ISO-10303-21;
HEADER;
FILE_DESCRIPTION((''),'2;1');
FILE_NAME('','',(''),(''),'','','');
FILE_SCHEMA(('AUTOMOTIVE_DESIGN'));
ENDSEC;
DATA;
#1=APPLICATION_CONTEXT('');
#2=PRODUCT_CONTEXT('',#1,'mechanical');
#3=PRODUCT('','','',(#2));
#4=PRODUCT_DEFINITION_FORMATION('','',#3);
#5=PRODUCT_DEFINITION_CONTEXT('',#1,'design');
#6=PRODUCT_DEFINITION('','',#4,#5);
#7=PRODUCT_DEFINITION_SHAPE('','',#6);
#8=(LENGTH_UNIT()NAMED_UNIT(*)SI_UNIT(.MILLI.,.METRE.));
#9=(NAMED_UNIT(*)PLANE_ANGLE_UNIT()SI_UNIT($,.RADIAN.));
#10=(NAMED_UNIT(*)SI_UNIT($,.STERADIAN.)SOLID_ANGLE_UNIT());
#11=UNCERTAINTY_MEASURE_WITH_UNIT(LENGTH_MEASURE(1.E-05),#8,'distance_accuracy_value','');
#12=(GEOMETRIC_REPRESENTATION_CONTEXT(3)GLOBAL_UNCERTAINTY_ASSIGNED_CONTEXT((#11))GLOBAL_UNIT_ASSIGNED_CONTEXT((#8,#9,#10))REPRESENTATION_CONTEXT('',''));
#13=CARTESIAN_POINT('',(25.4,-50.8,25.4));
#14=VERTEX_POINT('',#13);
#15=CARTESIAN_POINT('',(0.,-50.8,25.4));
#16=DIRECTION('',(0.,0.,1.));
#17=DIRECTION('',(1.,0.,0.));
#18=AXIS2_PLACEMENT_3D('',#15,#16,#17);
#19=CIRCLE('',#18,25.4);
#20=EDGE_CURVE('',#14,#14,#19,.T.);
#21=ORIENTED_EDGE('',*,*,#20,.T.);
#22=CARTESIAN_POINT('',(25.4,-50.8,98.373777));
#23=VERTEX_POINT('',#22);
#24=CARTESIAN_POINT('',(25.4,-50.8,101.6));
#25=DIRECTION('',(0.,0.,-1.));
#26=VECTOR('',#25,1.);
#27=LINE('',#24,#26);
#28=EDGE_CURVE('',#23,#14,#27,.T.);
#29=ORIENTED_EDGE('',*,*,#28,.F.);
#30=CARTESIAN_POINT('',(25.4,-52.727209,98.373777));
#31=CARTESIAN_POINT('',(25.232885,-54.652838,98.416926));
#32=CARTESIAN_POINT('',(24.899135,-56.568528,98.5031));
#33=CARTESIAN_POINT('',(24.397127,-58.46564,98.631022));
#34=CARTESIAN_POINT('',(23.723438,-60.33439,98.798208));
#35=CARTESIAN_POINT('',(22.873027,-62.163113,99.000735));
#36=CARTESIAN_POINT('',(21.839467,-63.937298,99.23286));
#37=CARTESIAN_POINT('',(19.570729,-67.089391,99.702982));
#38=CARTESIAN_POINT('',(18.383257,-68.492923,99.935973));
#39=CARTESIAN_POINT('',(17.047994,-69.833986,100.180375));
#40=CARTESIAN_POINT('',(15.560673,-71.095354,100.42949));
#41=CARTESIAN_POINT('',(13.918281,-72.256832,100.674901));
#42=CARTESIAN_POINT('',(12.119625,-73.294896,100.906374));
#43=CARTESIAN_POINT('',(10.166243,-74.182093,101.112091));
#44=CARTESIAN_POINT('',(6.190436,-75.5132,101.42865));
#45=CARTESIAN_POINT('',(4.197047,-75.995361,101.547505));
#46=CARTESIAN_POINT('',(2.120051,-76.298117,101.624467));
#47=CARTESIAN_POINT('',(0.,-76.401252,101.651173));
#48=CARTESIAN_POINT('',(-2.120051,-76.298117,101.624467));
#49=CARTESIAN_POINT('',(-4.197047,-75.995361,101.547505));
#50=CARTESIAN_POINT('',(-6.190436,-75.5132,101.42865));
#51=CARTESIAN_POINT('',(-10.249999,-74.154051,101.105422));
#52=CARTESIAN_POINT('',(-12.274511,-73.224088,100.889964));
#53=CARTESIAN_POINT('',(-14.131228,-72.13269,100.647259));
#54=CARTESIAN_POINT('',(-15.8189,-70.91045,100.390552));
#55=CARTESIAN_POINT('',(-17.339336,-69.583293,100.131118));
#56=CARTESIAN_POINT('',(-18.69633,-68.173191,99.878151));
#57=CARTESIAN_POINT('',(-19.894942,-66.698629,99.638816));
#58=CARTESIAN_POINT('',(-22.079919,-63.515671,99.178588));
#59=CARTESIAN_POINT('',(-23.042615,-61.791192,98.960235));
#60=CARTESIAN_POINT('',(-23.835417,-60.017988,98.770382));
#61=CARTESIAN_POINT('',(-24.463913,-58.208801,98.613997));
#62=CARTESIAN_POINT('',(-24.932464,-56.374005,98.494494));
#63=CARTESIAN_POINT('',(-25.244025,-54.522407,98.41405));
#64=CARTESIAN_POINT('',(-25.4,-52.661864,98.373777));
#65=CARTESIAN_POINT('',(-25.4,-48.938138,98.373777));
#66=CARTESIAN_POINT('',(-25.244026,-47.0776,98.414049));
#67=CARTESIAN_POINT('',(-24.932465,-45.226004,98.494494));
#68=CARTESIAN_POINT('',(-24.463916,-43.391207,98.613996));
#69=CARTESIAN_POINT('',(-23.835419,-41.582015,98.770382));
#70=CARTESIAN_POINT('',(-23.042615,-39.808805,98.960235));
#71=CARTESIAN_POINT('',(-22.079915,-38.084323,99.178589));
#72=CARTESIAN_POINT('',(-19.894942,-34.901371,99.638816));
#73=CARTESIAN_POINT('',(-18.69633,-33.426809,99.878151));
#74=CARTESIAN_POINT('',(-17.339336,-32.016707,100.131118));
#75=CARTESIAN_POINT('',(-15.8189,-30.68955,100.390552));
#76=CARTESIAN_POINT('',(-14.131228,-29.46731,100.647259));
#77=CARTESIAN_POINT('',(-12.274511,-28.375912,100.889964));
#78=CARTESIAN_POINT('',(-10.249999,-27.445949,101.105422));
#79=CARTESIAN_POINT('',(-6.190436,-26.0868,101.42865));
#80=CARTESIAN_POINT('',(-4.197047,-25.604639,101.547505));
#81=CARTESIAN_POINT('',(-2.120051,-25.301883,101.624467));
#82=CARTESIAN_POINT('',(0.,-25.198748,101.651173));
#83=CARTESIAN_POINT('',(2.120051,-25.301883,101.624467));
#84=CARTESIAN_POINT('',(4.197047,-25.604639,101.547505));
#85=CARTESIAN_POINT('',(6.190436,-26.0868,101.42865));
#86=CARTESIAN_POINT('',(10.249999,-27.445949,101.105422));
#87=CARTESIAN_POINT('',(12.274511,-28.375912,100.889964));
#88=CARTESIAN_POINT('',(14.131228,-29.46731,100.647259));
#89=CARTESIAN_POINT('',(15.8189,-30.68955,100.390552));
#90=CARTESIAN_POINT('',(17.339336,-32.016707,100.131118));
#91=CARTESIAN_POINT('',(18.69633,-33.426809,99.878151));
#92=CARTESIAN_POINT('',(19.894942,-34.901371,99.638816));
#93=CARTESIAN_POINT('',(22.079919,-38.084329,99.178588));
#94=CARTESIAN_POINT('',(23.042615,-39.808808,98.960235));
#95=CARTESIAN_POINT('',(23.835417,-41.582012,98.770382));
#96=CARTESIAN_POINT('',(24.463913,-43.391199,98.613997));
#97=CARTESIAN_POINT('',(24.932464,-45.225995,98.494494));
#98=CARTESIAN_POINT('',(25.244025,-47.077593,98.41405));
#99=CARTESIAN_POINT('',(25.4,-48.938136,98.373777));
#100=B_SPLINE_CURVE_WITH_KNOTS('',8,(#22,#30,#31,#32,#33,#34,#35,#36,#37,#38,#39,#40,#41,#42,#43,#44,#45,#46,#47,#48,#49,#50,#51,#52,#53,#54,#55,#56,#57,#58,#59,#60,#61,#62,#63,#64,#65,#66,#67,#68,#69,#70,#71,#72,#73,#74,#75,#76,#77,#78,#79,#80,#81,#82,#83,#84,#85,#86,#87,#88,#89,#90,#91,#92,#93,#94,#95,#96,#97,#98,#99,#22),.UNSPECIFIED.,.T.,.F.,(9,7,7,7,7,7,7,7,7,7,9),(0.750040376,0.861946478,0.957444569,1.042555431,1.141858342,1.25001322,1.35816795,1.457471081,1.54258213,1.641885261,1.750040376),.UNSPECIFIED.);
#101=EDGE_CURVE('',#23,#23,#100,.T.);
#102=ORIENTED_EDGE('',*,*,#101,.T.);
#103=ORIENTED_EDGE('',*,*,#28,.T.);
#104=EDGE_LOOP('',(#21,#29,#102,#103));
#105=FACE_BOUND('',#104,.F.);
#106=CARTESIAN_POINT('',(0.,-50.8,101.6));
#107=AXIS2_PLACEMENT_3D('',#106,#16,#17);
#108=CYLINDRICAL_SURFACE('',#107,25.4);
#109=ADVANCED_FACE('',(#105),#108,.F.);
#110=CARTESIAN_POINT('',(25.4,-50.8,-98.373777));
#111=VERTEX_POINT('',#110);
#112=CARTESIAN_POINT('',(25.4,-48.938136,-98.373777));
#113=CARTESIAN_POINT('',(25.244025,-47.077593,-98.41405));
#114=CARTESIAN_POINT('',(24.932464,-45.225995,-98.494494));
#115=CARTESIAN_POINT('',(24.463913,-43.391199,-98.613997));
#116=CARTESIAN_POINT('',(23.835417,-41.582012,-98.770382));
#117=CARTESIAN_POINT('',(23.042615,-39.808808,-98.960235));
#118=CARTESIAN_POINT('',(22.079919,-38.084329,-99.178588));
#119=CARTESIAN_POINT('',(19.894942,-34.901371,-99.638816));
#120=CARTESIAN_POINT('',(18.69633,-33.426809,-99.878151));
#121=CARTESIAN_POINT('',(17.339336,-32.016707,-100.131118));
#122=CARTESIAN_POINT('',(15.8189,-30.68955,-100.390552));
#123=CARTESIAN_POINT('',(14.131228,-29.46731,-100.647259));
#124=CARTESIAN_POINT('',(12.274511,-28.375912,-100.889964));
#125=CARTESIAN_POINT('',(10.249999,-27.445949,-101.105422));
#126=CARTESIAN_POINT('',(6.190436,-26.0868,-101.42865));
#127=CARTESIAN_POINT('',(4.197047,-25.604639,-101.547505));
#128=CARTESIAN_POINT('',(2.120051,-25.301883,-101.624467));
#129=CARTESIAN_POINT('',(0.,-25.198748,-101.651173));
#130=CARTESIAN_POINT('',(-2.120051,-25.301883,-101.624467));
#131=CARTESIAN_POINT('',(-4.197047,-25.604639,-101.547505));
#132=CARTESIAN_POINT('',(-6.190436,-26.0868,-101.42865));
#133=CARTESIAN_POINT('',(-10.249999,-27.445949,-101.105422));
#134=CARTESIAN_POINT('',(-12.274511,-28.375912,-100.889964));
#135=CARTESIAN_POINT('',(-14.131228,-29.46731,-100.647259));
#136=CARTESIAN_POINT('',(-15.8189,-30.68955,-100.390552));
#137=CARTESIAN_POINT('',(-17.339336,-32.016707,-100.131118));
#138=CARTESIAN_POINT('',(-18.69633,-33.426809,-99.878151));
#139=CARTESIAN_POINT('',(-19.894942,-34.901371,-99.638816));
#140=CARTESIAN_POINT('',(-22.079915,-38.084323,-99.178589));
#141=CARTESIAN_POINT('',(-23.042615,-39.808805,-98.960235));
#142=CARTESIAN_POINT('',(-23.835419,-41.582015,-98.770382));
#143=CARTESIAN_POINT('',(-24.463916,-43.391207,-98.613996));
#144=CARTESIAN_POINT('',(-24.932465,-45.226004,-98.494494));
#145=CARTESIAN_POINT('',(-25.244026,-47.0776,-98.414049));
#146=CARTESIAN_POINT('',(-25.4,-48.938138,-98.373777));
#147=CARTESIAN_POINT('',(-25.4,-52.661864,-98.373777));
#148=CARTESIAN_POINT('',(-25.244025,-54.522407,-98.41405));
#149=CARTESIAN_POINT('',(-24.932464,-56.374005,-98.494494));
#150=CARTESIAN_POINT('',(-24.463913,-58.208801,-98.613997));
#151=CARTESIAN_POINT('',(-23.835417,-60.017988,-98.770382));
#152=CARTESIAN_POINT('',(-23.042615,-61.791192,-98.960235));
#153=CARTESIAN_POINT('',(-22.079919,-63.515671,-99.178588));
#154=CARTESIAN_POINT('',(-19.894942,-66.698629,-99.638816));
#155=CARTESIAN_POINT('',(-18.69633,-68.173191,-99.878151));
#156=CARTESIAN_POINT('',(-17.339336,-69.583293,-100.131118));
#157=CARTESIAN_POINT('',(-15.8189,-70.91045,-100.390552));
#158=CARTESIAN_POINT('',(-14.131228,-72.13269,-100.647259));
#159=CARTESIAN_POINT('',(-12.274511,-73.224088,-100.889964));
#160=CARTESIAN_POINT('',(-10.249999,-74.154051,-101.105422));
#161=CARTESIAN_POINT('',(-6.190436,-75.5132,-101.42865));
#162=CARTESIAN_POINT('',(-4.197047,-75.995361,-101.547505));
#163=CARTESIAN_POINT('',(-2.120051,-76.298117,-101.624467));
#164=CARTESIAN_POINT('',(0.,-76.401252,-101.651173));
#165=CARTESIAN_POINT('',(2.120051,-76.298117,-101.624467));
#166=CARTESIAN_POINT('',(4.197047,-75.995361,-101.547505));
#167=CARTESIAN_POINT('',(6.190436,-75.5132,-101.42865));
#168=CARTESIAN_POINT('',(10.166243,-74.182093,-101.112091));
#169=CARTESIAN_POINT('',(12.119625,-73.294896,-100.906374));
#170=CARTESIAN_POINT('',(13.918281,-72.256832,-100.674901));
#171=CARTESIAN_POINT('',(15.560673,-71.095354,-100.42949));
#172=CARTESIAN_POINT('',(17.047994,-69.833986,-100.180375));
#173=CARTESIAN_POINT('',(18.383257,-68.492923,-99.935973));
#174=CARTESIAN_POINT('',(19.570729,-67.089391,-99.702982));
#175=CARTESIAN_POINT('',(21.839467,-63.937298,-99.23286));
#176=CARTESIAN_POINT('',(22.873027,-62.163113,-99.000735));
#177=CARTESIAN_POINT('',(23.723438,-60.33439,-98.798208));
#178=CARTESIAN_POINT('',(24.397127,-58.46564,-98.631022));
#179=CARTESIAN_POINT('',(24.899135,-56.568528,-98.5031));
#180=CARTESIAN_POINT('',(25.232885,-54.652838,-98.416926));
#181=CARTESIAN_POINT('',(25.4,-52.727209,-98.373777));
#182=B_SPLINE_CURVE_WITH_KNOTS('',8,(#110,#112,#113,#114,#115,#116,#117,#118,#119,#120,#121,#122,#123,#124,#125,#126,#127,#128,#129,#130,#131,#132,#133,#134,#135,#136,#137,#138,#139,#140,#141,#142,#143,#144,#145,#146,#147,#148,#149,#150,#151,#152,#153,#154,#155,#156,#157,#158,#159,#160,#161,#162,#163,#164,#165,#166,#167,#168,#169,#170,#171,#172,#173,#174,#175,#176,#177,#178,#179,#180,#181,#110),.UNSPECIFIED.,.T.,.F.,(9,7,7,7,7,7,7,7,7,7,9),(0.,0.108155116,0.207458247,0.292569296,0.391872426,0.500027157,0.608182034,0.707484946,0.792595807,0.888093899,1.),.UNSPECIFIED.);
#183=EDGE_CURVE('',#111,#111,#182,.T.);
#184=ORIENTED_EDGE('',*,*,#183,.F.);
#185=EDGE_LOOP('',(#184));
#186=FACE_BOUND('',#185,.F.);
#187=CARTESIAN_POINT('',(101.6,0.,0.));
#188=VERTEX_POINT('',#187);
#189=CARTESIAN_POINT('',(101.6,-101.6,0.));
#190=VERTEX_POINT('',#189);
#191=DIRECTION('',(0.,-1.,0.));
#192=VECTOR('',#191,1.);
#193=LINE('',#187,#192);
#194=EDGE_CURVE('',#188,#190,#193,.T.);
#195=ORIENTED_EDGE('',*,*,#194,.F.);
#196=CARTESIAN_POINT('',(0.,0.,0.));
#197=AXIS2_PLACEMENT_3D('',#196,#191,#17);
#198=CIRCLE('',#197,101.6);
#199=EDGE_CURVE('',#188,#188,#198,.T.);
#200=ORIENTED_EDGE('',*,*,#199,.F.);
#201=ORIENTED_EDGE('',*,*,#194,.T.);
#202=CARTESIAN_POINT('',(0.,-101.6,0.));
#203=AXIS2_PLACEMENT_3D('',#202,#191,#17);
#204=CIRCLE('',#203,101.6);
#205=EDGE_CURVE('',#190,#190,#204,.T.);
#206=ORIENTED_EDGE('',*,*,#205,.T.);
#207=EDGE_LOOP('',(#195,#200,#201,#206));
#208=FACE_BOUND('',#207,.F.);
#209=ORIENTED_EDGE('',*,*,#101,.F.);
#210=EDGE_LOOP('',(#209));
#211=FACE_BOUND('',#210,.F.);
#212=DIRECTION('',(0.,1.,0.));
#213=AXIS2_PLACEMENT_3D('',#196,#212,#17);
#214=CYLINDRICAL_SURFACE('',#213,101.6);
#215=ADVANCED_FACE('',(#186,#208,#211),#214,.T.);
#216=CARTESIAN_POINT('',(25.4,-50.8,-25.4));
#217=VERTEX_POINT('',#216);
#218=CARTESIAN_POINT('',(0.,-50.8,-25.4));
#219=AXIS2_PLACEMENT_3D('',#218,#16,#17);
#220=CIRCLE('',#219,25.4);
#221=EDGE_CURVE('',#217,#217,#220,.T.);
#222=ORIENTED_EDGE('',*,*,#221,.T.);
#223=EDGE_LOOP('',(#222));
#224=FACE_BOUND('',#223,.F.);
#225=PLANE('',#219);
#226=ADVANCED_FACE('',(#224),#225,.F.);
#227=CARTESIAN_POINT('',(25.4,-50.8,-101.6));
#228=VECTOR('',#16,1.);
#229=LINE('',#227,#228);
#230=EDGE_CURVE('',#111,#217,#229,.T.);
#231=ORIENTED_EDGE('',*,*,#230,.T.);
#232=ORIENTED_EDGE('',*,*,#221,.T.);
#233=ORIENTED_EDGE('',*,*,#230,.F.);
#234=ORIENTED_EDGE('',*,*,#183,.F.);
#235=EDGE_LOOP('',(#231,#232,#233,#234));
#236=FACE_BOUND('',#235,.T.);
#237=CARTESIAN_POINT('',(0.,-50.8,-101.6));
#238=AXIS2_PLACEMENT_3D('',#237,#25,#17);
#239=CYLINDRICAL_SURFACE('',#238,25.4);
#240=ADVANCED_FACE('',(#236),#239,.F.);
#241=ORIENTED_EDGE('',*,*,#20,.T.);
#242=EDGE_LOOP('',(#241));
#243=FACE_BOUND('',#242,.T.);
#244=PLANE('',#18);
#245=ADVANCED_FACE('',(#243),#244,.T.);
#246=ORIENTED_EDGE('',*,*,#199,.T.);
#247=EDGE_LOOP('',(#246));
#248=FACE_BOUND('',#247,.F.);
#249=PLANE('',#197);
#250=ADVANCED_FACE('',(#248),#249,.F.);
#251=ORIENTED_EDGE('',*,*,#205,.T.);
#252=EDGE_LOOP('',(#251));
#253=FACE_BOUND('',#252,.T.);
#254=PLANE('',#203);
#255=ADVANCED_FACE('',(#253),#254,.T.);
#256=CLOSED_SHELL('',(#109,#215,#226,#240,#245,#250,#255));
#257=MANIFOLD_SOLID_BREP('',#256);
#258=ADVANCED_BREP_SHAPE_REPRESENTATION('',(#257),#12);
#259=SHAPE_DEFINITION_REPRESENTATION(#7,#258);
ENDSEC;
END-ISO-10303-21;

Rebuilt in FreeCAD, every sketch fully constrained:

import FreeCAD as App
import Part
import Sketcher
Q = App.Units.Quantity

doc = App.newDocument("Part")
params = doc.addObject("Spreadsheet::Sheet", "Params")
for row, (alias, value) in enumerate([
    ("sketch1_diameter", "8 in"),
    ("pad1_length", "4 in"),
    ("sketch2_diameter", "2 in"),
    ("pocket1_length", "3 in"),
    ("sketch3_diameter", "2 in"),
    ("pocket2_length", "3 in"),
], start=1):
    params.set(f"A{row}", alias)
    params.set(f"B{row}", "=" + value)
    params.setAlias(f"B{row}", alias)

body = doc.addObject("PartDesign::Body", "Body")

sketch1 = body.newObject("Sketcher::SketchObject", "Sketch")
sketch1.AttachmentSupport = (doc.getObject("XZ_Plane"), [""])
sketch1.MapMode = "FlatFace"
sketch1.addGeometry(Part.Circle(App.Vector(0, 0, 0), App.Vector(0, 0, 1), 101.6), False)
sketch1.addConstraint(Sketcher.Constraint("Coincident", 0, 3, -1, 1))
sketch1.addConstraint(Sketcher.Constraint("Diameter", 0, Q("8 in")))
sketch1.setExpression("Constraints[1]", "Params.sketch1_diameter")
pad1 = body.newObject("PartDesign::Pad", "Pad")
pad1.Profile = sketch1
pad1.setExpression("Length", "Params.pad1_length")

sketch2 = body.newObject("Sketcher::SketchObject", "Sketch001")
sketch2.AttachmentSupport = (doc.getObject("XY_Plane"), [""])
sketch2.MapMode = "FlatFace"
sketch2.AttachmentOffset = App.Placement(App.Vector(0, 0, 4 * 25.4), App.Rotation())
sketch2.addGeometry(Part.Circle(App.Vector(0, -50.8, 0), App.Vector(0, 0, 1), 25.4), False)
sketch2.addConstraint(Sketcher.Constraint("PointOnObject", 0, 3, -2))
sketch2.addConstraint(Sketcher.Constraint("Diameter", 0, Q("2 in")))
sketch2.addConstraint(Sketcher.Constraint("DistanceY", 0, 3, -1, 1, Q("2 in")))
sketch2.setExpression("Constraints[1]", "Params.sketch2_diameter")
pocket1 = body.newObject("PartDesign::Pocket", "Pocket")
pocket1.Profile = sketch2
pocket1.setExpression("Length", "Params.pocket1_length")

sketch3 = body.newObject("Sketcher::SketchObject", "Sketch002")
sketch3.AttachmentSupport = (doc.getObject("XY_Plane"), [""])
sketch3.MapMode = "FlatFace"
sketch3.AttachmentOffset = App.Placement(App.Vector(0, 0, -4 * 25.4), App.Rotation())
sketch3.addGeometry(Part.Circle(App.Vector(0, -50.8, 0), App.Vector(0, 0, 1), 25.4), False)
sketch3.addConstraint(Sketcher.Constraint("PointOnObject", 0, 3, -2))
sketch3.addConstraint(Sketcher.Constraint("Diameter", 0, Q("2 in")))
sketch3.addConstraint(Sketcher.Constraint("DistanceY", 0, 3, -1, 1, Q("2 in")))
sketch3.setExpression("Constraints[1]", "Params.sketch3_diameter")
pocket2 = body.newObject("PartDesign::Pocket", "Pocket001")
pocket2.Profile = sketch3
pocket2.setExpression("Length", "Params.pocket2_length")
pocket2.Reversed = True

doc.recompute()
